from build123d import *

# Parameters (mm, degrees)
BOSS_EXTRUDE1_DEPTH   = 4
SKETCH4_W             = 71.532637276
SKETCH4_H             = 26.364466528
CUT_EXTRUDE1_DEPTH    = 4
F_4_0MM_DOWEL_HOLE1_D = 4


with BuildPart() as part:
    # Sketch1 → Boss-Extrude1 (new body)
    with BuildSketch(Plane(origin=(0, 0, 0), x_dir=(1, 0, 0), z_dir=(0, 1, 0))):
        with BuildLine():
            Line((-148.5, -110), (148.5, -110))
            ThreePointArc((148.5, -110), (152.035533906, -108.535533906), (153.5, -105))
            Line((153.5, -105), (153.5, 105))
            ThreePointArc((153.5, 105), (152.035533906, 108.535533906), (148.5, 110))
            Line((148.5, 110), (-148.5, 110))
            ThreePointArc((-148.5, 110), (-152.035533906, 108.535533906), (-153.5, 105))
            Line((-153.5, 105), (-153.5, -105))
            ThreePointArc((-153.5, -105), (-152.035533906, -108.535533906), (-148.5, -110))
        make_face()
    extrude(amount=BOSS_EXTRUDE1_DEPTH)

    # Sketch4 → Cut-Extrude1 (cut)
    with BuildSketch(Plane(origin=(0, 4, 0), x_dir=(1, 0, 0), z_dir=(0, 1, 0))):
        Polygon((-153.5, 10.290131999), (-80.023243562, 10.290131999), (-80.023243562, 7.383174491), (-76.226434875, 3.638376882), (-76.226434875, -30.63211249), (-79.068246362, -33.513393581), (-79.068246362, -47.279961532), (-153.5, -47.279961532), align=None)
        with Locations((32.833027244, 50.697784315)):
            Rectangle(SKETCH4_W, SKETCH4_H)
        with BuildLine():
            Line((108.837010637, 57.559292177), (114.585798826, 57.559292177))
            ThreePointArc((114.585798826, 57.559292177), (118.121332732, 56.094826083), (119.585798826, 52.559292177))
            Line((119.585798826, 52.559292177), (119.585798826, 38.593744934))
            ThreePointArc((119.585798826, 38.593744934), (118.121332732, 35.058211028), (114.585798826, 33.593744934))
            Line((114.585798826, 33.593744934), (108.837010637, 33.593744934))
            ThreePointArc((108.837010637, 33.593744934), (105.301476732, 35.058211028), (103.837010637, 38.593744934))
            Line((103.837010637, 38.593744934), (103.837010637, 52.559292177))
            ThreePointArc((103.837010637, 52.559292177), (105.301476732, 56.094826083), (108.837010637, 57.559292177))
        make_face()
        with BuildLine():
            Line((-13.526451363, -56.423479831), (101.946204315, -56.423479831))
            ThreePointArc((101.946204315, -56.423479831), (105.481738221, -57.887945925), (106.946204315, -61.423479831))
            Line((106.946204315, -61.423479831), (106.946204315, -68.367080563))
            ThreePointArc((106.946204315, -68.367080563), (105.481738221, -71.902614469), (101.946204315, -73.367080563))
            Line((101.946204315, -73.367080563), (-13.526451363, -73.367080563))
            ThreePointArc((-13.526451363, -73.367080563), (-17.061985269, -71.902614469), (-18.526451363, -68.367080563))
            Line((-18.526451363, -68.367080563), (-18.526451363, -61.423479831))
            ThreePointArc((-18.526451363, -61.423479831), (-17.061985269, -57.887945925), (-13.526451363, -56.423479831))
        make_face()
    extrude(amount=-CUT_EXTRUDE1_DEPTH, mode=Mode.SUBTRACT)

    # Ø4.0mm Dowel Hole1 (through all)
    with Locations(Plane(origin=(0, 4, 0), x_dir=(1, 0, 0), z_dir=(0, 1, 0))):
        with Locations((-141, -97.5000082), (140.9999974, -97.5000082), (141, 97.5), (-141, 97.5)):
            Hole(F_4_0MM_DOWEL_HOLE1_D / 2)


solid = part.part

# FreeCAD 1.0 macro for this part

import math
import FreeCAD as App
import Part
import Sketcher
Q = App.Units.Quantity

doc = App.newDocument("Part")
body = doc.addObject("PartDesign::Body", "Body")

sketch1 = doc.addObject("Sketcher::SketchObject", "Sketch")
body.addObject(sketch1)
sketch1.AttachmentSupport = (doc.XZ_Plane, [""])
sketch1.MapMode = "FlatFace"
sketch1.addGeometry(Part.LineSegment(App.Vector(-148, 110, 0), App.Vector(148, 110, 0)), False)
sketch1.addGeometry(Part.ArcOfCircle(Part.Circle(App.Vector(148, 105, 0), App.Vector(0, 0, 1), 5), math.radians(0), math.radians(90)), False)
sketch1.addGeometry(Part.LineSegment(App.Vector(154, 105, 0), App.Vector(154, -105, 0)), False)
sketch1.addGeometry(Part.ArcOfCircle(Part.Circle(App.Vector(148, -105, 0), App.Vector(0, 0, 1), 5), math.radians(-90), math.radians(0)), False)
sketch1.addGeometry(Part.LineSegment(App.Vector(148, -110, 0), App.Vector(-148, -110, 0)), False)
sketch1.addGeometry(Part.ArcOfCircle(Part.Circle(App.Vector(-148, -105, 0), App.Vector(0, 0, 1), 5), math.radians(180), math.radians(270)), False)
sketch1.addGeometry(Part.LineSegment(App.Vector(-154, -105, 0), App.Vector(-154, 105, 0)), False)
sketch1.addGeometry(Part.ArcOfCircle(Part.Circle(App.Vector(-148, 105, 0), App.Vector(0, 0, 1), 5), math.radians(90), math.radians(180)), False)
sketch1.addConstraint(Sketcher.Constraint("Tangent", 0, 2, 1, 2))
sketch1.addConstraint(Sketcher.Constraint("Tangent", 1, 1, 2, 1))
sketch1.addConstraint(Sketcher.Constraint("Tangent", 2, 2, 3, 2))
sketch1.addConstraint(Sketcher.Constraint("Tangent", 3, 1, 4, 1))
sketch1.addConstraint(Sketcher.Constraint("Tangent", 4, 2, 5, 2))
sketch1.addConstraint(Sketcher.Constraint("Tangent", 5, 1, 6, 1))
sketch1.addConstraint(Sketcher.Constraint("Tangent", 6, 2, 7, 2))
sketch1.addConstraint(Sketcher.Constraint("Tangent", 7, 1, 0, 1))
sketch1.addConstraint(Sketcher.Constraint("Horizontal", 0))
sketch1.addConstraint(Sketcher.Constraint("Vertical", 2))
sketch1.addConstraint(Sketcher.Constraint("Horizontal", 4))
sketch1.addConstraint(Sketcher.Constraint("Vertical", 6))
sketch1.addConstraint(Sketcher.Constraint("Equal", 1, 3))
sketch1.addConstraint(Sketcher.Constraint("Equal", 3, 5))
sketch1.addConstraint(Sketcher.Constraint("Equal", 5, 7))
sketch1.addConstraint(Sketcher.Constraint("Symmetric", 1, 3, 5, 3, -1, 1))
sketch1.addConstraint(Sketcher.Constraint("Radius", 1, Q("5 mm")))
sketch1.addConstraint(Sketcher.Constraint("DistanceX", 0, 1, 0, 2, Q("297 mm")))
sketch1.addConstraint(Sketcher.Constraint("DistanceY", 2, 2, 2, 1, Q("210 mm")))
pad1 = doc.addObject("PartDesign::Pad", "Pad")
body.addObject(pad1)
pad1.Profile = sketch1
pad1.Length = 4
pad1.Reversed = True

sketch2 = doc.addObject("Sketcher::SketchObject", "Sketch001")
body.addObject(sketch2)
sketch2.AttachmentSupport = (doc.XZ_Plane, [""])
sketch2.MapMode = "FlatFace"
sketch2.AttachmentOffset = App.Placement(App.Vector(0, 0, -4), App.Rotation())
sketch2.addGeometry(Part.LineSegment(App.Vector(-80, -10.3, 0), App.Vector(-153.5, -10.3, 0)), False)
sketch2.addGeometry(Part.LineSegment(App.Vector(-153.5, -10.3, 0), App.Vector(-153.5, 47.3, 0)), False)
sketch2.addGeometry(Part.LineSegment(App.Vector(-153.5, 47.3, 0), App.Vector(-79.1, 47.3, 0)), False)
sketch2.addGeometry(Part.LineSegment(App.Vector(-79.1, 47.3, 0), App.Vector(-79.1, 33.5, 0)), False)
sketch2.addGeometry(Part.LineSegment(App.Vector(-79.1, 33.5, 0), App.Vector(-76.2, 30.6, 0)), False)
sketch2.addGeometry(Part.LineSegment(App.Vector(-76.2, 30.6, 0), App.Vector(-76.2, -3.6, 0)), False)
sketch2.addGeometry(Part.LineSegment(App.Vector(-76.2, -3.6, 0), App.Vector(-80, -7.4, 0)), False)
sketch2.addGeometry(Part.LineSegment(App.Vector(-80, -7.4, 0), App.Vector(-80, -10.3, 0)), False)
sketch2.addGeometry(Part.LineSegment(App.Vector(-2.9, -63.9, 0), App.Vector(-2.9, -37.5, 0)), False)
sketch2.addGeometry(Part.LineSegment(App.Vector(-2.9, -37.5, 0), App.Vector(68.6, -37.5, 0)), False)
sketch2.addGeometry(Part.LineSegment(App.Vector(68.6, -37.5, 0), App.Vector(68.6, -63.9, 0)), False)
sketch2.addGeometry(Part.LineSegment(App.Vector(68.6, -63.9, 0), App.Vector(-2.9, -63.9, 0)), False)
sketch2.addGeometry(Part.LineSegment(App.Vector(114.6, -57.6, 0), App.Vector(108.8, -57.6, 0)), False)
sketch2.addGeometry(Part.ArcOfCircle(Part.Circle(App.Vector(108.8, -52.6, 0), App.Vector(0, 0, 1), 5), math.radians(-180), math.radians(-90)), False)
sketch2.addGeometry(Part.LineSegment(App.Vector(103.8, -52.6, 0), App.Vector(103.8, -38.6, 0)), False)
sketch2.addGeometry(Part.ArcOfCircle(Part.Circle(App.Vector(108.8, -38.6, 0), App.Vector(0, 0, 1), 5), math.radians(90), math.radians(180)), False)
sketch2.addGeometry(Part.LineSegment(App.Vector(108.8, -33.6, 0), App.Vector(114.6, -33.6, 0)), False)
sketch2.addGeometry(Part.ArcOfCircle(Part.Circle(App.Vector(114.6, -38.6, 0), App.Vector(0, 0, 1), 5), math.radians(0), math.radians(90)), False)
sketch2.addGeometry(Part.LineSegment(App.Vector(119.6, -38.6, 0), App.Vector(119.6, -52.6, 0)), False)
sketch2.addGeometry(Part.ArcOfCircle(Part.Circle(App.Vector(114.6, -52.6, 0), App.Vector(0, 0, 1), 5), math.radians(-90), math.radians(0)), False)
sketch2.addGeometry(Part.LineSegment(App.Vector(101.9, 56.4, 0), App.Vector(-13.5, 56.4, 0)), False)
sketch2.addGeometry(Part.ArcOfCircle(Part.Circle(App.Vector(-13.5, 61.4, 0), App.Vector(0, 0, 1), 5), math.radians(180), math.radians(270)), False)
sketch2.addGeometry(Part.LineSegment(App.Vector(-18.5, 61.4, 0), App.Vector(-18.5, 68.4, 0)), False)
sketch2.addGeometry(Part.ArcOfCircle(Part.Circle(App.Vector(-13.5, 68.4, 0), App.Vector(0, 0, 1), 5), math.radians(90), math.radians(180)), False)
sketch2.addGeometry(Part.LineSegment(App.Vector(-13.5, 73.4, 0), App.Vector(101.9, 73.4, 0)), False)
sketch2.addGeometry(Part.ArcOfCircle(Part.Circle(App.Vector(101.9, 68.4, 0), App.Vector(0, 0, 1), 5), math.radians(0), math.radians(90)), False)
sketch2.addGeometry(Part.LineSegment(App.Vector(106.9, 68.4, 0), App.Vector(106.9, 61.4, 0)), False)
sketch2.addGeometry(Part.ArcOfCircle(Part.Circle(App.Vector(101.9, 61.4, 0), App.Vector(0, 0, 1), 5), math.radians(-90), math.radians(0)), False)
sketch2.addConstraint(Sketcher.Constraint("Coincident", 0, 2, 1, 1))
sketch2.addConstraint(Sketcher.Constraint("Coincident", 1, 2, 2, 1))
sketch2.addConstraint(Sketcher.Constraint("Coincident", 2, 2, 3, 1))
sketch2.addConstraint(Sketcher.Constraint("Coincident", 3, 2, 4, 1))
sketch2.addConstraint(Sketcher.Constraint("Coincident", 4, 2, 5, 1))
sketch2.addConstraint(Sketcher.Constraint("Coincident", 5, 2, 6, 1))
sketch2.addConstraint(Sketcher.Constraint("Coincident", 6, 2, 7, 1))
sketch2.addConstraint(Sketcher.Constraint("Coincident", 7, 2, 0, 1))
sketch2.addConstraint(Sketcher.Constraint("Coincident", 8, 2, 9, 1))
sketch2.addConstraint(Sketcher.Constraint("Coincident", 9, 2, 10, 1))
sketch2.addConstraint(Sketcher.Constraint("Coincident", 10, 2, 11, 1))
sketch2.addConstraint(Sketcher.Constraint("Coincident", 11, 2, 8, 1))
sketch2.addConstraint(Sketcher.Constraint("Tangent", 12, 2, 13, 2))
sketch2.addConstraint(Sketcher.Constraint("Tangent", 13, 1, 14, 1))
sketch2.addConstraint(Sketcher.Constraint("Tangent", 14, 2, 15, 2))
sketch2.addConstraint(Sketcher.Constraint("Tangent", 15, 1, 16, 1))
sketch2.addConstraint(Sketcher.Constraint("Tangent", 16, 2, 17, 2))
sketch2.addConstraint(Sketcher.Constraint("Tangent", 17, 1, 18, 1))
sketch2.addConstraint(Sketcher.Constraint("Tangent", 18, 2, 19, 2))
sketch2.addConstraint(Sketcher.Constraint("Tangent", 19, 1, 12, 1))
sketch2.addConstraint(Sketcher.Constraint("Tangent", 20, 2, 21, 2))
sketch2.addConstraint(Sketcher.Constraint("Tangent", 21, 1, 22, 1))
sketch2.addConstraint(Sketcher.Constraint("Tangent", 22, 2, 23, 2))
sketch2.addConstraint(Sketcher.Constraint("Tangent", 23, 1, 24, 1))
sketch2.addConstraint(Sketcher.Constraint("Tangent", 24, 2, 25, 2))
sketch2.addConstraint(Sketcher.Constraint("Tangent", 25, 1, 26, 1))
sketch2.addConstraint(Sketcher.Constraint("Tangent", 26, 2, 27, 2))
sketch2.addConstraint(Sketcher.Constraint("Tangent", 27, 1, 20, 1))
sketch2.addConstraint(Sketcher.Constraint("Horizontal", 0))
sketch2.addConstraint(Sketcher.Constraint("Vertical", 1))
sketch2.addConstraint(Sketcher.Constraint("Horizontal", 2))
sketch2.addConstraint(Sketcher.Constraint("Vertical", 3))
sketch2.addConstraint(Sketcher.Constraint("Vertical", 5))
sketch2.addConstraint(Sketcher.Constraint("Vertical", 7))
sketch2.addConstraint(Sketcher.Constraint("Vertical", 8))
sketch2.addConstraint(Sketcher.Constraint("Horizontal", 9))
sketch2.addConstraint(Sketcher.Constraint("Vertical", 10))
sketch2.addConstraint(Sketcher.Constraint("Horizontal", 11))
sketch2.addConstraint(Sketcher.Constraint("Horizontal", 12))
sketch2.addConstraint(Sketcher.Constraint("Vertical", 14))
sketch2.addConstraint(Sketcher.Constraint("Horizontal", 16))
sketch2.addConstraint(Sketcher.Constraint("Vertical", 18))
sketch2.addConstraint(Sketcher.Constraint("Horizontal", 20))
sketch2.addConstraint(Sketcher.Constraint("Vertical", 22))
sketch2.addConstraint(Sketcher.Constraint("Horizontal", 24))
sketch2.addConstraint(Sketcher.Constraint("Vertical", 26))
sketch2.addConstraint(Sketcher.Constraint("Equal", 13, 15))
sketch2.addConstraint(Sketcher.Constraint("Equal", 15, 17))
sketch2.addConstraint(Sketcher.Constraint("Equal", 17, 19))
sketch2.addConstraint(Sketcher.Constraint("Equal", 19, 21))
sketch2.addConstraint(Sketcher.Constraint("Equal", 21, 23))
sketch2.addConstraint(Sketcher.Constraint("Equal", 23, 25))
sketch2.addConstraint(Sketcher.Constraint("Equal", 25, 27))
sketch2.addConstraint(Sketcher.Constraint("Perpendicular", 4, 6))
sketch2.addConstraint(Sketcher.Constraint("Radius", 13, Q("5 mm")))
sketch2.addConstraint(Sketcher.Constraint("DistanceX", 0, 2, -1, 1, Q("153.5 mm")))
sketch2.addConstraint(Sketcher.Constraint("DistanceY", 22, 1, 22, 2, Q("6.943601 mm")))
sketch2.addConstraint(Sketcher.Constraint("DistanceX", 12, 2, 12, 1, Q("5.748788 mm")))
sketch2.addConstraint(Sketcher.Constraint("DistanceY", 5, 2, 5, 1, Q("34.270489 mm")))
sketch2.addConstraint(Sketcher.Constraint("DistanceX", -1, 1, 17, 3, Q("114.585799 mm")))
sketch2.addConstraint(Sketcher.Constraint("DistanceX", 0, 2, 0, 1, Q("73.476756 mm")))
sketch2.addConstraint(Sketcher.Constraint("DistanceX", 2, 1, 2, 2, Q("74.431754 mm")))
sketch2.addConstraint(Sketcher.Constraint("DistanceX", 9, 1, 9, 2, Q("71.532637 mm")))
sketch2.addConstraint(Sketcher.Constraint("DistanceX", 20, 2, 20, 1, Q("115.472656 mm")))
sketch2.addConstraint(Sketcher.Constraint("DistanceY", 1, 1, 1, 2, Q("57.570094 mm")))
sketch2.addConstraint(Sketcher.Constraint("DistanceY", 3, 2, 3, 1, Q("13.766568 mm")))
sketch2.addConstraint(Sketcher.Constraint("DistanceY", 7, 2, 7, 1, Q("2.906958 mm")))
sketch2.addConstraint(Sketcher.Constraint("DistanceY", 8, 1, 8, 2, Q("26.364467 mm")))
sketch2.addConstraint(Sketcher.Constraint("DistanceY", 14, 1, 14, 2, Q("13.965547 mm")))
sketch2.addConstraint(Sketcher.Constraint("DistanceX", 21, 3, -1, 1, Q("13.526451 mm")))
sketch2.addConstraint(Sketcher.Constraint("DistanceY", -1, 1, 21, 3, Q("61.42348 mm")))
sketch2.addConstraint(Sketcher.Constraint("DistanceY", 0, 2, -1, 1, Q("10.290132 mm")))
sketch2.addConstraint(Sketcher.Constraint("DistanceX", 8, 2, -1, 1, Q("2.933291 mm")))
sketch2.addConstraint(Sketcher.Constraint("DistanceY", 8, 2, -1, 1, Q("37.515551 mm")))
sketch2.addConstraint(Sketcher.Constraint("DistanceY", 13, 3, 0, 2, Q("42.26916 mm")))
sketch2.addConstraint(Sketcher.Constraint("DistanceX", 3, 2, 4, 2, Q("2.841811 mm")))
pocket1 = doc.addObject("PartDesign::Pocket", "Pocket")
body.addObject(pocket1)
pocket1.Profile = sketch2
pocket1.Length = 4
pocket1.Reversed = True

sketch3 = doc.addObject("Sketcher::SketchObject", "Sketch002")
body.addObject(sketch3)
sketch3.AttachmentSupport = (doc.XZ_Plane, [""])
sketch3.MapMode = "FlatFace"
sketch3.AttachmentOffset = App.Placement(App.Vector(0, 0, -4), App.Rotation())
sketch3.addGeometry(Part.Circle(App.Vector(-141, 97.5, 0), App.Vector(0, 0, 1), 2), False)
sketch3.addGeometry(Part.Circle(App.Vector(141, 97.5, 0), App.Vector(0, 0, 1), 2), False)
sketch3.addGeometry(Part.Circle(App.Vector(141, -97.5, 0), App.Vector(0, 0, 1), 2), False)
sketch3.addGeometry(Part.Circle(App.Vector(-141, -97.5, 0), App.Vector(0, 0, 1), 2), False)
sketch3.addConstraint(Sketcher.Constraint("Equal", 0, 1))
sketch3.addConstraint(Sketcher.Constraint("Equal", 1, 2))
sketch3.addConstraint(Sketcher.Constraint("Equal", 2, 3))
sketch3.addConstraint(Sketcher.Constraint("Symmetric", 0, 3, 2, 3, -1, 1))
sketch3.addConstraint(Sketcher.Constraint("Symmetric", 1, 3, 3, 3, -1, 1))
sketch3.addConstraint(Sketcher.Constraint("Symmetric", 0, 3, 1, 3, -2))
sketch3.addConstraint(Sketcher.Constraint("Diameter", 0, Q("4 mm")))
sketch3.addConstraint(Sketcher.Constraint("DistanceX", 0, 3, -1, 1, Q("141 mm")))
sketch3.addConstraint(Sketcher.Constraint("DistanceY", 2, 3, -1, 1, Q("97.5 mm")))
doc.recompute()
hole = doc.addObject("PartDesign::Hole", "Hole")
body.addObject(hole)
hole.Profile = sketch3
hole.ThreadType = "None"
hole.Diameter = 4
hole.DepthType = "ThroughAll"
hole.Reversed = True

doc.recompute()
